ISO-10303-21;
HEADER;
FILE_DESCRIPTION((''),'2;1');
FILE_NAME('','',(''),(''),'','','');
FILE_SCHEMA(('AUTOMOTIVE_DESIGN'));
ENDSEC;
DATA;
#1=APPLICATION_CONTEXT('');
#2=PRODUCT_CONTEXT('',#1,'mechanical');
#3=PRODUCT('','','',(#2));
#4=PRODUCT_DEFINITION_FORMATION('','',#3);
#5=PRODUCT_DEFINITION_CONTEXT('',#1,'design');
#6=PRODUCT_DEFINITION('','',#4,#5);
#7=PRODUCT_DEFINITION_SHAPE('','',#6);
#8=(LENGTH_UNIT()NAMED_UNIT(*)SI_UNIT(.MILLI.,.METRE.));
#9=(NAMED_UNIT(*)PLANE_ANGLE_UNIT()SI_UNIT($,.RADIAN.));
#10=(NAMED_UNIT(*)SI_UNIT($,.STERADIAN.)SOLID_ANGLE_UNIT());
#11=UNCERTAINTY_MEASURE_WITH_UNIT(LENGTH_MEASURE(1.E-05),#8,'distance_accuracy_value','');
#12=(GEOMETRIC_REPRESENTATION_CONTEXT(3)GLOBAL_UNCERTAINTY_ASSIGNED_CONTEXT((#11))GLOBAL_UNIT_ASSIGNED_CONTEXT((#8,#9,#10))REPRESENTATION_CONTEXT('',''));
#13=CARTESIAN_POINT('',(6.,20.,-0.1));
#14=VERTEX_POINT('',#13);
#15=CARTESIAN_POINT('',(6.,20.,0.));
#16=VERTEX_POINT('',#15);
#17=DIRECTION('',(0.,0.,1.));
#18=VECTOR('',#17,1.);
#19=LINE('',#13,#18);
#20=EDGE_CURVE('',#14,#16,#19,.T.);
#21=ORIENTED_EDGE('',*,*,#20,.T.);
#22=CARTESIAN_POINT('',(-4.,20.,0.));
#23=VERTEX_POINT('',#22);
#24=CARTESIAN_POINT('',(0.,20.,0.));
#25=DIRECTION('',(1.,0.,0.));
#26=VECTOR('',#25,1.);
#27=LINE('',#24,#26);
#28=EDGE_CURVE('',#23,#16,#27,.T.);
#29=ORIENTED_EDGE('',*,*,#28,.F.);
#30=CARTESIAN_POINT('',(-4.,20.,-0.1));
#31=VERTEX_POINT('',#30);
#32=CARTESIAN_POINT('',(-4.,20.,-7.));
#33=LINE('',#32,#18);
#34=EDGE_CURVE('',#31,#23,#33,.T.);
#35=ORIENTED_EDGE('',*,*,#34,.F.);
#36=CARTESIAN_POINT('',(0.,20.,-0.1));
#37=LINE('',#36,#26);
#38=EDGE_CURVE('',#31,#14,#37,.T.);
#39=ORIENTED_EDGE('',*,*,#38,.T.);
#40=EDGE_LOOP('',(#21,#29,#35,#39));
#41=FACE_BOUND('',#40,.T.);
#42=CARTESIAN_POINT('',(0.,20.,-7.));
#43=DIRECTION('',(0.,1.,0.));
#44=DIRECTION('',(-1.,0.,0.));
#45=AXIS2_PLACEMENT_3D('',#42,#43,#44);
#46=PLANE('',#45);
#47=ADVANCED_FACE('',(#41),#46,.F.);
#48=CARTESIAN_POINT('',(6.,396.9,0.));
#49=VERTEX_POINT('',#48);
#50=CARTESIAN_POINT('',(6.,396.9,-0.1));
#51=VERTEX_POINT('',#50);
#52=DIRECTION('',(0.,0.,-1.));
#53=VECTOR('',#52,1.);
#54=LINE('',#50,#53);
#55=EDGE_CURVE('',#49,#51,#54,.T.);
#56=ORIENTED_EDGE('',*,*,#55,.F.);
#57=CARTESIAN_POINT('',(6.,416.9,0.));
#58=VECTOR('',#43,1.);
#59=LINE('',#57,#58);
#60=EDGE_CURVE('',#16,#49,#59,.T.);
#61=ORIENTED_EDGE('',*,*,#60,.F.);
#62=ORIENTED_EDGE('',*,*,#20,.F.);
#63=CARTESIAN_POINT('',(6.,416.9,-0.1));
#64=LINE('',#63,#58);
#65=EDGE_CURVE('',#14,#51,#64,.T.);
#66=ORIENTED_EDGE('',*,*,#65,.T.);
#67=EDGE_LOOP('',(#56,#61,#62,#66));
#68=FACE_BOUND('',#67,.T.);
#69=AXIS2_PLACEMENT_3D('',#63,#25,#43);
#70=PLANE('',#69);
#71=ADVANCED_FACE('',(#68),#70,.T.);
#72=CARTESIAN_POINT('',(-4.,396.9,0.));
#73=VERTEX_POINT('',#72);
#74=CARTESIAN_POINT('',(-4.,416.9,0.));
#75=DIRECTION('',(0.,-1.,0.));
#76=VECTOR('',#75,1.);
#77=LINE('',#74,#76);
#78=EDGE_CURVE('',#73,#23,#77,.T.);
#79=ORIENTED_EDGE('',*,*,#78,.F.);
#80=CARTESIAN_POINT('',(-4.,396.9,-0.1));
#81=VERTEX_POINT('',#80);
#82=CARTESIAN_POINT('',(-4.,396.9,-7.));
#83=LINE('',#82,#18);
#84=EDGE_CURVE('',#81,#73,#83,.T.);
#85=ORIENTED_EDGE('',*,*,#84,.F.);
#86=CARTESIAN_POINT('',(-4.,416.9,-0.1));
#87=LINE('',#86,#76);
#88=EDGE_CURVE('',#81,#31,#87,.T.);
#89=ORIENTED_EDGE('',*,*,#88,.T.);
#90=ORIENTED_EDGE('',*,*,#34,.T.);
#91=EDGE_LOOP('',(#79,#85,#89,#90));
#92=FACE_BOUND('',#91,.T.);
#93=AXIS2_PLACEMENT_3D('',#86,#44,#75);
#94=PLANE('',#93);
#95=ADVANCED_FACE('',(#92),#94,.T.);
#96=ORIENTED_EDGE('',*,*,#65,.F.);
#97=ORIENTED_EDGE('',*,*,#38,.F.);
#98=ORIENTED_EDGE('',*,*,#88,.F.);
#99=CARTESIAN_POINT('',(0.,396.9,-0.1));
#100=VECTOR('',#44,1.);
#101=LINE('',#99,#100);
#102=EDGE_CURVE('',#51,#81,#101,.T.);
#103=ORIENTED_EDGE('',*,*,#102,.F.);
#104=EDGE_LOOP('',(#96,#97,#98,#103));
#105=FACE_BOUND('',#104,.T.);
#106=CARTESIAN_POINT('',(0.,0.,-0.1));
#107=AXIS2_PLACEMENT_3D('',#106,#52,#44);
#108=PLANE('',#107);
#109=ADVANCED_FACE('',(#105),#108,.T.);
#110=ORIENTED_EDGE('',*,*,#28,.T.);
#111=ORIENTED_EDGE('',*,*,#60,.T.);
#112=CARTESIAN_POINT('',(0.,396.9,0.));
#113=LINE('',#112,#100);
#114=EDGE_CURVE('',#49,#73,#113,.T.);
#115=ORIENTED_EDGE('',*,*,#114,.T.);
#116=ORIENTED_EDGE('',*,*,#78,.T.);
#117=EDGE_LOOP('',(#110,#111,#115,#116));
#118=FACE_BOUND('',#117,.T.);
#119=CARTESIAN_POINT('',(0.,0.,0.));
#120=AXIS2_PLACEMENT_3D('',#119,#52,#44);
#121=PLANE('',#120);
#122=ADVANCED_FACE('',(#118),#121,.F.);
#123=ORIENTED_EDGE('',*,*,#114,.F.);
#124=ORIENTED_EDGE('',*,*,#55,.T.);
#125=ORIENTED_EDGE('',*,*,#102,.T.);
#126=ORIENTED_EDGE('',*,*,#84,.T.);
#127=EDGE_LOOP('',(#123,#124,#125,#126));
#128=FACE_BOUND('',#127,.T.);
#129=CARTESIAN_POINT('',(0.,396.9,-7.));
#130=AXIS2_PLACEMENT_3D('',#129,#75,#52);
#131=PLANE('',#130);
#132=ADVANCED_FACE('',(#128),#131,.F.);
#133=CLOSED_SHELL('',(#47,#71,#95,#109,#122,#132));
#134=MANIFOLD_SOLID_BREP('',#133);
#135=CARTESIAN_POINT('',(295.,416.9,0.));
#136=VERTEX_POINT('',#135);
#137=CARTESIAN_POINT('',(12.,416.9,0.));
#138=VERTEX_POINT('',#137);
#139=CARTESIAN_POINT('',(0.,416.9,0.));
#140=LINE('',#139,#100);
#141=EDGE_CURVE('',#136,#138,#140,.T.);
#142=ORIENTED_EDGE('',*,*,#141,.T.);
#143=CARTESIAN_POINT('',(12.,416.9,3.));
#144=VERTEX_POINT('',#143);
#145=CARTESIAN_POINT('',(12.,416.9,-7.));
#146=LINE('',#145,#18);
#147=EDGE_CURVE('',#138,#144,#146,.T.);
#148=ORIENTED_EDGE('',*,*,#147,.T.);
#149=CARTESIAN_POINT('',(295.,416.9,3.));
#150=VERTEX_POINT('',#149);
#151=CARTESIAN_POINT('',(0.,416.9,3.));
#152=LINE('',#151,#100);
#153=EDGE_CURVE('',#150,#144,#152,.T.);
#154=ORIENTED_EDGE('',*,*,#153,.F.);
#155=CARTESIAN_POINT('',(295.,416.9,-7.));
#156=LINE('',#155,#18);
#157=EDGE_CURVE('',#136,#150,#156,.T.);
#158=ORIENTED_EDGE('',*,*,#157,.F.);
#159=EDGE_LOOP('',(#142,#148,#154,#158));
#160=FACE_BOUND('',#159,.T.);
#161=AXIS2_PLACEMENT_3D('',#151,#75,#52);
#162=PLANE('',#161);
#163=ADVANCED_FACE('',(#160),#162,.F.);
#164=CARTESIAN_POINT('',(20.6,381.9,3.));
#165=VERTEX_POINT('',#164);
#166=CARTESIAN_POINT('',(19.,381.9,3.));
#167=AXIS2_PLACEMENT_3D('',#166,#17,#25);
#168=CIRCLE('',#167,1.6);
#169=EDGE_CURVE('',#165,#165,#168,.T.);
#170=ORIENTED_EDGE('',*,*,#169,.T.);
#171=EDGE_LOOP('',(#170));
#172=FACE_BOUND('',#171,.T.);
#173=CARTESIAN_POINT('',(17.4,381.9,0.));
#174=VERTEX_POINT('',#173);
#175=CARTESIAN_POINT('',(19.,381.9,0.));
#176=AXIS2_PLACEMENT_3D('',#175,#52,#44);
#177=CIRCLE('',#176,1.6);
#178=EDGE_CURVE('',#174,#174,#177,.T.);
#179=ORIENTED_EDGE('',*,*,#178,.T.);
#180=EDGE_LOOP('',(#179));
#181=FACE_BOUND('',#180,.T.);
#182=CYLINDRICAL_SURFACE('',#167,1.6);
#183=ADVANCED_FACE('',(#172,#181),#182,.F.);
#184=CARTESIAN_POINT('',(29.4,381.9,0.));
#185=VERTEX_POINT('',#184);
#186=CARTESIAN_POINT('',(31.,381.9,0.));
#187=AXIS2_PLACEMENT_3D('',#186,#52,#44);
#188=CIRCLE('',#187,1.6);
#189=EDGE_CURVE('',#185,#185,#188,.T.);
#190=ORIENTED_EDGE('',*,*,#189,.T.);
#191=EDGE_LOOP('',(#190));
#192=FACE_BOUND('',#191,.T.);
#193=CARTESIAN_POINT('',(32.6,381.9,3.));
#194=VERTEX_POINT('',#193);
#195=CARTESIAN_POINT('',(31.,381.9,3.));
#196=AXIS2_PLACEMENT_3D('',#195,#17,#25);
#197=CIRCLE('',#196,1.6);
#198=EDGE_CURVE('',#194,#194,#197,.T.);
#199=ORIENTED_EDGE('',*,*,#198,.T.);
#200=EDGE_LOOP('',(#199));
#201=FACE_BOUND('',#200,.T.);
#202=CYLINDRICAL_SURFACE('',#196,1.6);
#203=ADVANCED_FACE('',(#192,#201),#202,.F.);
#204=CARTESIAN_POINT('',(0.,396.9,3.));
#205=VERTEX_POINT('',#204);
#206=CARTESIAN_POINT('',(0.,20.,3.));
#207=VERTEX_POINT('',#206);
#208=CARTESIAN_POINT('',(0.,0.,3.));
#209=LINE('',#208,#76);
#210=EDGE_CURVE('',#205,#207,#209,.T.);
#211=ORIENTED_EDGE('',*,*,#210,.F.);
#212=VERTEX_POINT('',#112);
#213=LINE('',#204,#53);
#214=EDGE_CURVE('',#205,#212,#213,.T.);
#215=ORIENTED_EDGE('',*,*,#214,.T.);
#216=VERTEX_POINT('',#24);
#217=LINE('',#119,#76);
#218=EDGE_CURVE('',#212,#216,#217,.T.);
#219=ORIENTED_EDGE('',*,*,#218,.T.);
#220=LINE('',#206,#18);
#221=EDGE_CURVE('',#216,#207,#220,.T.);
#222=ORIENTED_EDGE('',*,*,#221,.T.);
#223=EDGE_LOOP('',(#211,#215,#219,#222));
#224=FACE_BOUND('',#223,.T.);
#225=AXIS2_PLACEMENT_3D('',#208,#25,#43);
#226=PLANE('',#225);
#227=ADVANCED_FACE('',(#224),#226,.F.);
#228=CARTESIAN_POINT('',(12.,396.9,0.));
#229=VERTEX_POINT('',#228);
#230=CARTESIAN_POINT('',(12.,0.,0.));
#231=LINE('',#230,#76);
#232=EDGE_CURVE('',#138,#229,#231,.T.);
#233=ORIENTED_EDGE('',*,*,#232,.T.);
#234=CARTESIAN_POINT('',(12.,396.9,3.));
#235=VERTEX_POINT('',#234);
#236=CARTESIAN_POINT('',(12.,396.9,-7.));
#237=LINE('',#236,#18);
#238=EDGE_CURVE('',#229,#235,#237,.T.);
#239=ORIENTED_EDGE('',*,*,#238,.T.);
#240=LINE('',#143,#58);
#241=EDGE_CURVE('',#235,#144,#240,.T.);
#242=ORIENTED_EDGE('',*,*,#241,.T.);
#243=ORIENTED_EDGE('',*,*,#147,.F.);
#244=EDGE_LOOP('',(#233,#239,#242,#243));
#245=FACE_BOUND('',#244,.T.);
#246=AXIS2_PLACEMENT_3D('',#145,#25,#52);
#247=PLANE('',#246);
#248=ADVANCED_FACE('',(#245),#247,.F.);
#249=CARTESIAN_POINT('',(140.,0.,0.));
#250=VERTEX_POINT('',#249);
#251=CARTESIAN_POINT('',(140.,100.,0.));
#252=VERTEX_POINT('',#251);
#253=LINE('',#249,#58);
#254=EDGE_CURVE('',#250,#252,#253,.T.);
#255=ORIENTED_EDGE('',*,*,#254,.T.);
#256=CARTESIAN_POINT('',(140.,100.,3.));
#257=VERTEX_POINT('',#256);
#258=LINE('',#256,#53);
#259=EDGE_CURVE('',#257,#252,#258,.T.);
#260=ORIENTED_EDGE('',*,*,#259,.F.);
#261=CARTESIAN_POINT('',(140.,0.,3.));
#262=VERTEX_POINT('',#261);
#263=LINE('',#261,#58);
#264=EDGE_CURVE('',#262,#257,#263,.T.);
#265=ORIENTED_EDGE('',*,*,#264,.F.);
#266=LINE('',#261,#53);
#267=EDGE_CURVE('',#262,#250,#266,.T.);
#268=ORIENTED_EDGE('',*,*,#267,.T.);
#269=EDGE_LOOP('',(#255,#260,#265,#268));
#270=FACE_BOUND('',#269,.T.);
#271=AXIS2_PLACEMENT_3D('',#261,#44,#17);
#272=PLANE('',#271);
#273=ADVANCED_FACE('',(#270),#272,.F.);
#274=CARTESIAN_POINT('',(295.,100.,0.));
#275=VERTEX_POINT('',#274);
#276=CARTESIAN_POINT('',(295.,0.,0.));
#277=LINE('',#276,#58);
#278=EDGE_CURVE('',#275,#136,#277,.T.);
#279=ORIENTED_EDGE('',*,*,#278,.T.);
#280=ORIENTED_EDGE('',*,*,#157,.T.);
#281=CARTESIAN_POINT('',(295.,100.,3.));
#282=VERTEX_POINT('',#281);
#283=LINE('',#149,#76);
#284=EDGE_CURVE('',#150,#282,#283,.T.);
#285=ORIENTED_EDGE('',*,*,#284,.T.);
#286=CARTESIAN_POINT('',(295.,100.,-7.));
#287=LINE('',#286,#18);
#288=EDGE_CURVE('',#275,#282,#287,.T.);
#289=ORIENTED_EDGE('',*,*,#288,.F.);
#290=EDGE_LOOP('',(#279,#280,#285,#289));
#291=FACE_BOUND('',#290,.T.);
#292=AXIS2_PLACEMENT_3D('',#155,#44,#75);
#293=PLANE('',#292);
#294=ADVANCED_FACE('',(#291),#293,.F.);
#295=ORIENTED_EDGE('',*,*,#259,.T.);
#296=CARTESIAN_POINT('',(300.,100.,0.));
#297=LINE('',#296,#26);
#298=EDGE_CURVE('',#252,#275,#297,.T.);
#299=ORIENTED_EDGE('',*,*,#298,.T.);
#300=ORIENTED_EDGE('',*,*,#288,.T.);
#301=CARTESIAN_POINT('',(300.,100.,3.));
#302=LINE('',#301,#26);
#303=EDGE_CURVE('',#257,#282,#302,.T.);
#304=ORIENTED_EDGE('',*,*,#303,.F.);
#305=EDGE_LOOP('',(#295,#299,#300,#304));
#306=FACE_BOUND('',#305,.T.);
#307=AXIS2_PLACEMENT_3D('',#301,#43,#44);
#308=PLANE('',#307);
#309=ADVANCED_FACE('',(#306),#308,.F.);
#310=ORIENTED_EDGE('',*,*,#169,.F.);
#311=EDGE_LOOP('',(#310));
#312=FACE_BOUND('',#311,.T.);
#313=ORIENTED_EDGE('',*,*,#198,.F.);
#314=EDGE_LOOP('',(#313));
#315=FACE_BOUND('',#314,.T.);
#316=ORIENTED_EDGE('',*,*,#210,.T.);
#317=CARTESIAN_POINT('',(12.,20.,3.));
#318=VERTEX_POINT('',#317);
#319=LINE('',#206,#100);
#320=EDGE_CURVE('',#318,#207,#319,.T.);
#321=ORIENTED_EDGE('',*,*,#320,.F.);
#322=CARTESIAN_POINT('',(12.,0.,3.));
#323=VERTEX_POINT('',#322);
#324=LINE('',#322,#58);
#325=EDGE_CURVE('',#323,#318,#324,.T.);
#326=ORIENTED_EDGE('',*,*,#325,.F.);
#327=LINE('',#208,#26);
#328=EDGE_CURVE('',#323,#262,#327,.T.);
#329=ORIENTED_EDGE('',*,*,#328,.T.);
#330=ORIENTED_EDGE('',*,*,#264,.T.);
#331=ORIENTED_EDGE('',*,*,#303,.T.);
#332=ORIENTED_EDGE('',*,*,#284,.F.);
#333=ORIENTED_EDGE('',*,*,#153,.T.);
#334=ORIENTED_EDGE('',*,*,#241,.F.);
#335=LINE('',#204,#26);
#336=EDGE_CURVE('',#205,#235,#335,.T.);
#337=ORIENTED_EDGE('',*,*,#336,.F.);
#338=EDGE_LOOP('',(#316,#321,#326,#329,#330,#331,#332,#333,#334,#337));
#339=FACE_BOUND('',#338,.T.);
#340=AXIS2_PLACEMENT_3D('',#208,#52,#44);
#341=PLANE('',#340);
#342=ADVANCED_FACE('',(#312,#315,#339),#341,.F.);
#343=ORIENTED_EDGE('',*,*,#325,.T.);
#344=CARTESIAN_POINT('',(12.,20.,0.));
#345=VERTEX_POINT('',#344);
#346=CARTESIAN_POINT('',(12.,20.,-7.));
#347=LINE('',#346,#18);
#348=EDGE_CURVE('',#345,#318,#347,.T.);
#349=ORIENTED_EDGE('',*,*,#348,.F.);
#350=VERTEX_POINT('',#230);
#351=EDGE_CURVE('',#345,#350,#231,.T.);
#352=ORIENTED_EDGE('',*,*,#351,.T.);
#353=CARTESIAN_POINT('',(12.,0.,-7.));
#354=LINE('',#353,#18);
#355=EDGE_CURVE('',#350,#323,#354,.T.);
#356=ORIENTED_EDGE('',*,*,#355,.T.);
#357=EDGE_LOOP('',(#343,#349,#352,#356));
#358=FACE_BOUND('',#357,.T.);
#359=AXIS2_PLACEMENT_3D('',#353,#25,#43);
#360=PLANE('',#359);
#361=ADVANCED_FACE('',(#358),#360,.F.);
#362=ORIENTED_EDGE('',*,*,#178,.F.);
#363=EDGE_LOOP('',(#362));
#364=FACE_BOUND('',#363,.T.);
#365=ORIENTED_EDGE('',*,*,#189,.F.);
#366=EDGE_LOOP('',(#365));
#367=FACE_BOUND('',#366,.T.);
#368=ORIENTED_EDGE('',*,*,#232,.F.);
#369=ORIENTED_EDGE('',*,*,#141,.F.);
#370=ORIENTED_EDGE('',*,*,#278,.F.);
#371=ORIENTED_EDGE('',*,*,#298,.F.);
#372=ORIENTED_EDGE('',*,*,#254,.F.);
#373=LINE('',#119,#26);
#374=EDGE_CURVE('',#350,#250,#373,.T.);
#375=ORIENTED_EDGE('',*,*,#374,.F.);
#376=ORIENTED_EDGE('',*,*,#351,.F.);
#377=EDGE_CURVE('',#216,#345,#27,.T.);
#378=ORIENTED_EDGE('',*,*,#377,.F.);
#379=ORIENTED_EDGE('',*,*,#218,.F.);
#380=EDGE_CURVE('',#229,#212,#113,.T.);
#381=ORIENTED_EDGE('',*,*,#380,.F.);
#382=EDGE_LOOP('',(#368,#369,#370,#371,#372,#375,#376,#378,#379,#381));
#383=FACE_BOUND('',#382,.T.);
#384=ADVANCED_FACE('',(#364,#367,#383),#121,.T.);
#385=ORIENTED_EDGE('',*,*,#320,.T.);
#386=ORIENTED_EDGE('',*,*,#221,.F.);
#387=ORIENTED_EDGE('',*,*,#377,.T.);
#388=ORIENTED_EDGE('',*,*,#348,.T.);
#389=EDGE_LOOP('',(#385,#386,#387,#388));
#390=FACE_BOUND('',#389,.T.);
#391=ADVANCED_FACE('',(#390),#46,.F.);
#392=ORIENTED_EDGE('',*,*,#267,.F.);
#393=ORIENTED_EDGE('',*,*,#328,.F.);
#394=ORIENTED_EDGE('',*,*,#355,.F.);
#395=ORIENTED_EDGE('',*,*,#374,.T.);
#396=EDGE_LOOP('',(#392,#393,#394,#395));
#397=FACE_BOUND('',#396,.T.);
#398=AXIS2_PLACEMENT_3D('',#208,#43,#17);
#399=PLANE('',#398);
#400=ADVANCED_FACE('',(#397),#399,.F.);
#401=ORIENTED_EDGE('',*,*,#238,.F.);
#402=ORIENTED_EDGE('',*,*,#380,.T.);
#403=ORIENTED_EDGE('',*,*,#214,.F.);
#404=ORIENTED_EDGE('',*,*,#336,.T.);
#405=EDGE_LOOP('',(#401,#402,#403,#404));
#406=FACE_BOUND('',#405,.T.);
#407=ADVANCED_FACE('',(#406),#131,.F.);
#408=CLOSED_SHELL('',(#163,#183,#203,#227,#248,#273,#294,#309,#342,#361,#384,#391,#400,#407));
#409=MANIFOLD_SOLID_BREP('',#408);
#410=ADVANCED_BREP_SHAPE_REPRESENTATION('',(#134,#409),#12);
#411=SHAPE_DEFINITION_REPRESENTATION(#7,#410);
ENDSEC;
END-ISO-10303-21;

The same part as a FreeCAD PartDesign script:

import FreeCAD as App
import Part
import Sketcher


def add_polygon(sketch, points):
    """Adds a closed chain of lines whose ends are joined by coincident constraints."""
    first, n = sketch.GeometryCount, len(points)
    for a, b in zip(points, points[1:] + points[:1]):
        sketch.addGeometry(Part.LineSegment(App.Vector(*a, 0), App.Vector(*b, 0)), False)
    for i in range(n):
        sketch.addConstraint(Sketcher.Constraint("Coincident", first + i, 2, first + (i + 1) % n, 1))

doc = App.newDocument("Part")
body = doc.addObject("PartDesign::Body", "Body")

# Sketch on XY plane
sketch1 = body.newObject("Sketcher::SketchObject", "Sketch")
sketch1.AttachmentSupport = (doc.getObject("XY_Plane"), [""])
sketch1.MapMode = "FlatFace"
add_polygon(sketch1, [(0, 0), (140, 0), (140, 100), (300, 100), (300, 417), (0, 417)])  # lines 0-5
sketch1.addConstraint([
    Sketcher.Constraint("Horizontal", 0),
    Sketcher.Constraint("Vertical", 1),
    Sketcher.Constraint("Horizontal", 2),
    Sketcher.Constraint("Vertical", 3),
    Sketcher.Constraint("Horizontal", 4),
    Sketcher.Constraint("Vertical", 5),
    Sketcher.Constraint("Coincident", 5, 2, -1, 1),
    Sketcher.Constraint("DistanceX", 0, 1, 0, 2, 140.0),
    Sketcher.Constraint("DistanceX", 2, 1, 2, 2, 160.0),
    Sketcher.Constraint("DistanceY", 1, 1, 1, 2, 100.0),
    Sketcher.Constraint("DistanceY", 3, 1, 3, 2, 316.9),
])
pad1 = body.newObject("PartDesign::Pad", "Pad")
pad1.Profile = sketch1
pad1.Length = 3
body2 = doc.addObject("PartDesign::Body", "Body001")

# Sketch on XY plane
sketch2 = body2.newObject("Sketcher::SketchObject", "Sketch001")
sketch2.AttachmentSupport = (doc.getObject("XY_Plane001"), [""])
sketch2.MapMode = "FlatFace"
add_polygon(sketch2, [(-4, 417), (-4, 0), (6, 0), (6, 417)])  # lines 0-3
sketch2.addConstraint([
    Sketcher.Constraint("Vertical", 0),
    Sketcher.Constraint("Horizontal", 1),
    Sketcher.Constraint("Vertical", 2),
    Sketcher.Constraint("Horizontal", 3),
    Sketcher.Constraint("PointOnObject", 0, 2, -1),
    Sketcher.Constraint("DistanceX", 1, 1, 1, 2, 10.0),
    Sketcher.Constraint("DistanceY", 0, 2, 0, 1, 416.9),
    Sketcher.Constraint("DistanceX", 0, 2, -1, 1, 4.0),
])
pad2 = body2.newObject("PartDesign::Pad", "Pad001")
pad2.Profile = sketch2
pad2.Length = 0.1
pad2.Reversed = True
body3 = doc.addObject("PartDesign::Body", "Body002")
body3.AllowCompound = True

# Sketch on XY plane
sketch3 = body3.newObject("Sketcher::SketchObject", "Sketch002")
sketch3.AttachmentSupport = (doc.getObject("XY_Plane002"), [""])
sketch3.MapMode = "FlatFace"
sketch3.AttachmentOffset = App.Placement(App.Vector(0, 0, 3), App.Rotation())
add_polygon(sketch3, [(-4, 417), (-4, 397), (12, 397), (12, 417)])  # lines 0-3
add_polygon(sketch3, [(12, 0), (12, 20), (-4, 20), (-4, 0)])  # lines 4-7
sketch3.addConstraint([
    Sketcher.Constraint("Vertical", 0),
    Sketcher.Constraint("Horizontal", 1),
    Sketcher.Constraint("Vertical", 2),
    Sketcher.Constraint("Horizontal", 3),
    Sketcher.Constraint("Vertical", 4),
    Sketcher.Constraint("Horizontal", 5),
    Sketcher.Constraint("Vertical", 6),
    Sketcher.Constraint("Horizontal", 7),
    Sketcher.Constraint("PointOnObject", 6, 2, -1),
    Sketcher.Constraint("Vertical", 2, 2, 4, 2),
    Sketcher.Constraint("Vertical", 3, 2, 5, 2),
    Sketcher.Constraint("Equal", 2, 4),
    Sketcher.Constraint("DistanceX", 1, 1, 1, 2, 16.0),
    Sketcher.Constraint("DistanceY", 0, 2, 0, 1, 20.0),
    Sketcher.Constraint("DistanceX", 0, 2, -1, 1, 4.0),
    Sketcher.Constraint("DistanceY", -1, 1, 0, 2, 396.9),
])
pad3 = body3.newObject("PartDesign::Pad", "Pad002")
pad3.Profile = sketch3
pad3.Length = 10
pad3.Reversed = True
doc.recompute()

body4 = doc.addObject("PartDesign::Body", "Body003")
body4.BaseFeature = body3
boolean = body.newObject("PartDesign::Boolean", "Boolean")
boolean.Type = "Cut"
boolean.addObjects([body4])
doc.recompute()

# Sketch on YZ plane
sketch4 = body.newObject("Sketcher::SketchObject", "Sketch003")
sketch4.AttachmentSupport = (doc.getObject("YZ_Plane"), [""])
sketch4.MapMode = "FlatFace"
sketch4.AttachmentOffset = App.Placement(App.Vector(0, 0, 31), App.Rotation())
add_polygon(sketch4, [(381.9, -0.1), (381.9, 3), (380.3, 3), (380.3, -0.1)])  # lines 0-3
sketch4.addGeometry(Part.LineSegment(App.Vector(381.9, 3, 0), App.Vector(381.9, -0.1, 0)), True)  # axis
sketch4.addConstraint([
    Sketcher.Constraint("Vertical", 0),
    Sketcher.Constraint("Horizontal", 1),
    Sketcher.Constraint("Vertical", 2),
    Sketcher.Constraint("Horizontal", 3),
    Sketcher.Constraint("Vertical", 4),
    Sketcher.Constraint("Coincident", 4, 1, 0, 2),
    Sketcher.Constraint("Horizontal", 2, 2, 4, 2),
    Sketcher.Constraint("DistanceX", 1, 2, 1, 1, 1.6),
    Sketcher.Constraint("DistanceY", 0, 1, 0, 2, 3.1),
    Sketcher.Constraint("DistanceY", -1, 1, 0, 2, 3.0),
    Sketcher.Constraint("DistanceX", -1, 1, 0, 2, 381.9),
])
groove = body.newObject("PartDesign::Groove", "Groove")
groove.Profile = sketch4
groove.ReferenceAxis = (sketch4, ["Axis0"])
groove.Angle = 360
doc.recompute()

linearpattern = body.newObject("PartDesign::LinearPattern", "LinearPattern")
linearpattern.Originals = [groove]
linearpattern.Direction = (doc.getObject("X_Axis"), [""])
linearpattern.Mode = "offset"
linearpattern.Offset = 12
linearpattern.Occurrences = 2
linearpattern.Reversed = True
body.Tip = linearpattern

# Sketch on XY plane
sketch5 = body.newObject("Sketcher::SketchObject", "Sketch004")
sketch5.AttachmentSupport = (doc.getObject("XY_Plane"), [""])
sketch5.MapMode = "FlatFace"
sketch5.AttachmentOffset = App.Placement(App.Vector(0, 0, 3), App.Rotation())
add_polygon(sketch5, [(295, 417), (295, 100), (300, 100), (300, 417)])  # lines 0-3
sketch5.addConstraint([
    Sketcher.Constraint("Vertical", 0),
    Sketcher.Constraint("Horizontal", 1),
    Sketcher.Constraint("Vertical", 2),
    Sketcher.Constraint("Horizontal", 3),
    Sketcher.Constraint("DistanceX", 1, 1, 1, 2, 5.0),
    Sketcher.Constraint("DistanceY", 0, 2, 0, 1, 316.9),
    Sketcher.Constraint("DistanceX", -1, 1, 0, 2, 295.0),
    Sketcher.Constraint("DistanceY", -1, 1, 0, 2, 100.0),
])
pocket1 = body.newObject("PartDesign::Pocket", "Pocket")
pocket1.Profile = sketch5
pocket1.Length = 10
doc.recompute()

boolean2 = body2.newObject("PartDesign::Boolean", "Boolean001")
boolean2.Type = "Cut"
boolean2.addObjects([body3])

doc.recompute()
